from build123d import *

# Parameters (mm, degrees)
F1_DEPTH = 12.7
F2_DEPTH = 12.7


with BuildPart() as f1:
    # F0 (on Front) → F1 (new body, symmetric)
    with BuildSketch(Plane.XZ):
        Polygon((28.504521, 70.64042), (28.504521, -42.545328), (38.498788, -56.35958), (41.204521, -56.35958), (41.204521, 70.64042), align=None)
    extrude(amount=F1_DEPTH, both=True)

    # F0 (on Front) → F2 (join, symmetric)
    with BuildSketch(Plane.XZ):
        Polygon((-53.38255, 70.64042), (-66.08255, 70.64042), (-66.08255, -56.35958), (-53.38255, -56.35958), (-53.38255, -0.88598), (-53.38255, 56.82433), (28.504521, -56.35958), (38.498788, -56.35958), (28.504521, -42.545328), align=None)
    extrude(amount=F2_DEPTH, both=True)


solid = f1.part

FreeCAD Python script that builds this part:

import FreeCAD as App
import Part
import Sketcher

V = App.Vector
Q = App.Units.Quantity

doc = App.newDocument("Part")
params = doc.addObject("Spreadsheet::Sheet", "Params")
for row, (alias, value) in enumerate([
    ("sketch1_height", "5 in"),
    ("sketch1_width", "0.5 in"),
    ("pad1_length", "1 in"),
    ("sketch2_height", "5 in"),
    ("sketch2_width", "0.5 in"),
    ("sketch2_length", "5.5 in"),
    ("pad2_length", "1 in"),
], start=1):
    params.set(f"A{row}", alias)
    params.set(f"B{row}", "=" + value)
    params.setAlias(f"B{row}", alias)

body = doc.addObject("PartDesign::Body", "Body")

# Sketch on XZ plane
sketch1 = doc.addObject("Sketcher::SketchObject", "Sketch")
body.addObject(sketch1)
sketch1.AttachmentSupport = (doc.XZ_Plane, [""])
sketch1.MapMode = "FlatFace"
sketch1.addGeometry([
    Part.LineSegment(V(28.504521, 70.64042, 0), V(28.504521, -42.545328, 0)),  # 0
    Part.LineSegment(V(28.504521, -42.545328, 0), V(38.498788, -56.35958, 0)),  # 1
    Part.LineSegment(V(38.498788, -56.35958, 0), V(41.204521, -56.35958, 0)),  # 2
    Part.LineSegment(V(41.204521, -56.35958, 0), V(41.204521, 70.64042, 0)),  # 3
    Part.LineSegment(V(41.204521, 70.64042, 0), V(28.504521, 70.64042, 0)),  # 4
], False)
sketch1.addConstraint([
    Sketcher.Constraint("Coincident", 0, 2, 1, 1),
    Sketcher.Constraint("Coincident", 1, 2, 2, 1),
    Sketcher.Constraint("Coincident", 2, 2, 3, 1),
    Sketcher.Constraint("Coincident", 3, 2, 4, 1),
    Sketcher.Constraint("Coincident", 4, 2, 0, 1),
    Sketcher.Constraint("Vertical", 0),
    Sketcher.Constraint("Horizontal", 2),
    Sketcher.Constraint("Vertical", 3),
    Sketcher.Constraint("Horizontal", 4),
    Sketcher.Constraint("DistanceY", 3, 1, 3, 2, Q("5 in")),
    Sketcher.Constraint("DistanceX", 4, 2, 4, 1, Q("0.5 in")),
    Sketcher.Constraint("DistanceY", 0, 2, 0, 1, 113.185748),
    Sketcher.Constraint("Distance", 1, 17.050482),
    Sketcher.Constraint("DistanceX", -1, 1, 0, 2, 28.504521),
    Sketcher.Constraint("DistanceY", 1, 2, -1, 1, 56.35958),
])
sketch1.setExpression("Constraints[9]", "Params.sketch1_height")
sketch1.setExpression("Constraints[10]", "Params.sketch1_width")
pad1 = doc.addObject("PartDesign::Pad", "Pad")
body.addObject(pad1)
pad1.Profile = sketch1
pad1.setExpression("Length", "Params.pad1_length")
pad1.Midplane = True

# Sketch on XZ plane
sketch2 = doc.addObject("Sketcher::SketchObject", "Sketch001")
body.addObject(sketch2)
sketch2.AttachmentSupport = (doc.XZ_Plane, [""])
sketch2.MapMode = "FlatFace"
sketch2.addGeometry([
    Part.LineSegment(V(-53.38255, 70.64042, 0), V(-66.08255, 70.64042, 0)),  # 0
    Part.LineSegment(V(-66.08255, 70.64042, 0), V(-66.08255, -56.35958, 0)),  # 1
    Part.LineSegment(V(-66.08255, -56.35958, 0), V(-53.38255, -56.35958, 0)),  # 2
    Part.LineSegment(V(-53.38255, -56.35958, 0), V(-53.38255, 56.82433, 0)),  # 3
    Part.LineSegment(V(-53.38255, 56.82433, 0), V(28.504521, -56.35958, 0)),  # 4
    Part.LineSegment(V(28.504521, -56.35958, 0), V(38.498788, -56.35958, 0)),  # 5
    Part.LineSegment(V(38.498788, -56.35958, 0), V(28.504521, -42.545328, 0)),  # 6
    Part.LineSegment(V(28.504521, -42.545328, 0), V(-53.38255, 70.64042, 0)),  # 7
], False)
sketch2.addConstraint([
    Sketcher.Constraint("Coincident", 0, 2, 1, 1),
    Sketcher.Constraint("Coincident", 1, 2, 2, 1),
    Sketcher.Constraint("Coincident", 2, 2, 3, 1),
    Sketcher.Constraint("Coincident", 3, 2, 4, 1),
    Sketcher.Constraint("Coincident", 4, 2, 5, 1),
    Sketcher.Constraint("Coincident", 5, 2, 6, 1),
    Sketcher.Constraint("Coincident", 6, 2, 7, 1),
    Sketcher.Constraint("Coincident", 7, 2, 0, 1),
    Sketcher.Constraint("Horizontal", 0),
    Sketcher.Constraint("Vertical", 1),
    Sketcher.Constraint("Horizontal", 2),
    Sketcher.Constraint("Vertical", 3),
    Sketcher.Constraint("Horizontal", 5),
    Sketcher.Constraint("Parallel", 6, 7),
    Sketcher.Constraint("Horizontal", 2, 2, 4, 2),
    Sketcher.Constraint("Vertical", 4, 2, 6, 2),
    Sketcher.Constraint("Vertical", 3, 2, 7, 2),
    Sketcher.Constraint("DistanceY", 1, 2, 1, 1, Q("5 in")),
    Sketcher.Constraint("DistanceX", 0, 2, 0, 1, Q("0.5 in")),
    Sketcher.Constraint("Distance", 4, Q("5.5 in")),
    Sketcher.Constraint("DistanceY", 3, 1, 3, 2, 113.18391),
    Sketcher.Constraint("Distance", 6, 17.050482),
    Sketcher.Constraint("DistanceX", 0, 2, -1, 1, 66.08255),
    Sketcher.Constraint("DistanceY", -1, 1, 0, 2, 70.64042),
])
sketch2.setExpression("Constraints[17]", "Params.sketch2_height")
sketch2.setExpression("Constraints[18]", "Params.sketch2_width")
sketch2.setExpression("Constraints[19]", "Params.sketch2_length")
pad2 = doc.addObject("PartDesign::Pad", "Pad001")
body.addObject(pad2)
pad2.Profile = sketch2
pad2.setExpression("Length", "Params.pad2_length")
pad2.Midplane = True

doc.recompute()
